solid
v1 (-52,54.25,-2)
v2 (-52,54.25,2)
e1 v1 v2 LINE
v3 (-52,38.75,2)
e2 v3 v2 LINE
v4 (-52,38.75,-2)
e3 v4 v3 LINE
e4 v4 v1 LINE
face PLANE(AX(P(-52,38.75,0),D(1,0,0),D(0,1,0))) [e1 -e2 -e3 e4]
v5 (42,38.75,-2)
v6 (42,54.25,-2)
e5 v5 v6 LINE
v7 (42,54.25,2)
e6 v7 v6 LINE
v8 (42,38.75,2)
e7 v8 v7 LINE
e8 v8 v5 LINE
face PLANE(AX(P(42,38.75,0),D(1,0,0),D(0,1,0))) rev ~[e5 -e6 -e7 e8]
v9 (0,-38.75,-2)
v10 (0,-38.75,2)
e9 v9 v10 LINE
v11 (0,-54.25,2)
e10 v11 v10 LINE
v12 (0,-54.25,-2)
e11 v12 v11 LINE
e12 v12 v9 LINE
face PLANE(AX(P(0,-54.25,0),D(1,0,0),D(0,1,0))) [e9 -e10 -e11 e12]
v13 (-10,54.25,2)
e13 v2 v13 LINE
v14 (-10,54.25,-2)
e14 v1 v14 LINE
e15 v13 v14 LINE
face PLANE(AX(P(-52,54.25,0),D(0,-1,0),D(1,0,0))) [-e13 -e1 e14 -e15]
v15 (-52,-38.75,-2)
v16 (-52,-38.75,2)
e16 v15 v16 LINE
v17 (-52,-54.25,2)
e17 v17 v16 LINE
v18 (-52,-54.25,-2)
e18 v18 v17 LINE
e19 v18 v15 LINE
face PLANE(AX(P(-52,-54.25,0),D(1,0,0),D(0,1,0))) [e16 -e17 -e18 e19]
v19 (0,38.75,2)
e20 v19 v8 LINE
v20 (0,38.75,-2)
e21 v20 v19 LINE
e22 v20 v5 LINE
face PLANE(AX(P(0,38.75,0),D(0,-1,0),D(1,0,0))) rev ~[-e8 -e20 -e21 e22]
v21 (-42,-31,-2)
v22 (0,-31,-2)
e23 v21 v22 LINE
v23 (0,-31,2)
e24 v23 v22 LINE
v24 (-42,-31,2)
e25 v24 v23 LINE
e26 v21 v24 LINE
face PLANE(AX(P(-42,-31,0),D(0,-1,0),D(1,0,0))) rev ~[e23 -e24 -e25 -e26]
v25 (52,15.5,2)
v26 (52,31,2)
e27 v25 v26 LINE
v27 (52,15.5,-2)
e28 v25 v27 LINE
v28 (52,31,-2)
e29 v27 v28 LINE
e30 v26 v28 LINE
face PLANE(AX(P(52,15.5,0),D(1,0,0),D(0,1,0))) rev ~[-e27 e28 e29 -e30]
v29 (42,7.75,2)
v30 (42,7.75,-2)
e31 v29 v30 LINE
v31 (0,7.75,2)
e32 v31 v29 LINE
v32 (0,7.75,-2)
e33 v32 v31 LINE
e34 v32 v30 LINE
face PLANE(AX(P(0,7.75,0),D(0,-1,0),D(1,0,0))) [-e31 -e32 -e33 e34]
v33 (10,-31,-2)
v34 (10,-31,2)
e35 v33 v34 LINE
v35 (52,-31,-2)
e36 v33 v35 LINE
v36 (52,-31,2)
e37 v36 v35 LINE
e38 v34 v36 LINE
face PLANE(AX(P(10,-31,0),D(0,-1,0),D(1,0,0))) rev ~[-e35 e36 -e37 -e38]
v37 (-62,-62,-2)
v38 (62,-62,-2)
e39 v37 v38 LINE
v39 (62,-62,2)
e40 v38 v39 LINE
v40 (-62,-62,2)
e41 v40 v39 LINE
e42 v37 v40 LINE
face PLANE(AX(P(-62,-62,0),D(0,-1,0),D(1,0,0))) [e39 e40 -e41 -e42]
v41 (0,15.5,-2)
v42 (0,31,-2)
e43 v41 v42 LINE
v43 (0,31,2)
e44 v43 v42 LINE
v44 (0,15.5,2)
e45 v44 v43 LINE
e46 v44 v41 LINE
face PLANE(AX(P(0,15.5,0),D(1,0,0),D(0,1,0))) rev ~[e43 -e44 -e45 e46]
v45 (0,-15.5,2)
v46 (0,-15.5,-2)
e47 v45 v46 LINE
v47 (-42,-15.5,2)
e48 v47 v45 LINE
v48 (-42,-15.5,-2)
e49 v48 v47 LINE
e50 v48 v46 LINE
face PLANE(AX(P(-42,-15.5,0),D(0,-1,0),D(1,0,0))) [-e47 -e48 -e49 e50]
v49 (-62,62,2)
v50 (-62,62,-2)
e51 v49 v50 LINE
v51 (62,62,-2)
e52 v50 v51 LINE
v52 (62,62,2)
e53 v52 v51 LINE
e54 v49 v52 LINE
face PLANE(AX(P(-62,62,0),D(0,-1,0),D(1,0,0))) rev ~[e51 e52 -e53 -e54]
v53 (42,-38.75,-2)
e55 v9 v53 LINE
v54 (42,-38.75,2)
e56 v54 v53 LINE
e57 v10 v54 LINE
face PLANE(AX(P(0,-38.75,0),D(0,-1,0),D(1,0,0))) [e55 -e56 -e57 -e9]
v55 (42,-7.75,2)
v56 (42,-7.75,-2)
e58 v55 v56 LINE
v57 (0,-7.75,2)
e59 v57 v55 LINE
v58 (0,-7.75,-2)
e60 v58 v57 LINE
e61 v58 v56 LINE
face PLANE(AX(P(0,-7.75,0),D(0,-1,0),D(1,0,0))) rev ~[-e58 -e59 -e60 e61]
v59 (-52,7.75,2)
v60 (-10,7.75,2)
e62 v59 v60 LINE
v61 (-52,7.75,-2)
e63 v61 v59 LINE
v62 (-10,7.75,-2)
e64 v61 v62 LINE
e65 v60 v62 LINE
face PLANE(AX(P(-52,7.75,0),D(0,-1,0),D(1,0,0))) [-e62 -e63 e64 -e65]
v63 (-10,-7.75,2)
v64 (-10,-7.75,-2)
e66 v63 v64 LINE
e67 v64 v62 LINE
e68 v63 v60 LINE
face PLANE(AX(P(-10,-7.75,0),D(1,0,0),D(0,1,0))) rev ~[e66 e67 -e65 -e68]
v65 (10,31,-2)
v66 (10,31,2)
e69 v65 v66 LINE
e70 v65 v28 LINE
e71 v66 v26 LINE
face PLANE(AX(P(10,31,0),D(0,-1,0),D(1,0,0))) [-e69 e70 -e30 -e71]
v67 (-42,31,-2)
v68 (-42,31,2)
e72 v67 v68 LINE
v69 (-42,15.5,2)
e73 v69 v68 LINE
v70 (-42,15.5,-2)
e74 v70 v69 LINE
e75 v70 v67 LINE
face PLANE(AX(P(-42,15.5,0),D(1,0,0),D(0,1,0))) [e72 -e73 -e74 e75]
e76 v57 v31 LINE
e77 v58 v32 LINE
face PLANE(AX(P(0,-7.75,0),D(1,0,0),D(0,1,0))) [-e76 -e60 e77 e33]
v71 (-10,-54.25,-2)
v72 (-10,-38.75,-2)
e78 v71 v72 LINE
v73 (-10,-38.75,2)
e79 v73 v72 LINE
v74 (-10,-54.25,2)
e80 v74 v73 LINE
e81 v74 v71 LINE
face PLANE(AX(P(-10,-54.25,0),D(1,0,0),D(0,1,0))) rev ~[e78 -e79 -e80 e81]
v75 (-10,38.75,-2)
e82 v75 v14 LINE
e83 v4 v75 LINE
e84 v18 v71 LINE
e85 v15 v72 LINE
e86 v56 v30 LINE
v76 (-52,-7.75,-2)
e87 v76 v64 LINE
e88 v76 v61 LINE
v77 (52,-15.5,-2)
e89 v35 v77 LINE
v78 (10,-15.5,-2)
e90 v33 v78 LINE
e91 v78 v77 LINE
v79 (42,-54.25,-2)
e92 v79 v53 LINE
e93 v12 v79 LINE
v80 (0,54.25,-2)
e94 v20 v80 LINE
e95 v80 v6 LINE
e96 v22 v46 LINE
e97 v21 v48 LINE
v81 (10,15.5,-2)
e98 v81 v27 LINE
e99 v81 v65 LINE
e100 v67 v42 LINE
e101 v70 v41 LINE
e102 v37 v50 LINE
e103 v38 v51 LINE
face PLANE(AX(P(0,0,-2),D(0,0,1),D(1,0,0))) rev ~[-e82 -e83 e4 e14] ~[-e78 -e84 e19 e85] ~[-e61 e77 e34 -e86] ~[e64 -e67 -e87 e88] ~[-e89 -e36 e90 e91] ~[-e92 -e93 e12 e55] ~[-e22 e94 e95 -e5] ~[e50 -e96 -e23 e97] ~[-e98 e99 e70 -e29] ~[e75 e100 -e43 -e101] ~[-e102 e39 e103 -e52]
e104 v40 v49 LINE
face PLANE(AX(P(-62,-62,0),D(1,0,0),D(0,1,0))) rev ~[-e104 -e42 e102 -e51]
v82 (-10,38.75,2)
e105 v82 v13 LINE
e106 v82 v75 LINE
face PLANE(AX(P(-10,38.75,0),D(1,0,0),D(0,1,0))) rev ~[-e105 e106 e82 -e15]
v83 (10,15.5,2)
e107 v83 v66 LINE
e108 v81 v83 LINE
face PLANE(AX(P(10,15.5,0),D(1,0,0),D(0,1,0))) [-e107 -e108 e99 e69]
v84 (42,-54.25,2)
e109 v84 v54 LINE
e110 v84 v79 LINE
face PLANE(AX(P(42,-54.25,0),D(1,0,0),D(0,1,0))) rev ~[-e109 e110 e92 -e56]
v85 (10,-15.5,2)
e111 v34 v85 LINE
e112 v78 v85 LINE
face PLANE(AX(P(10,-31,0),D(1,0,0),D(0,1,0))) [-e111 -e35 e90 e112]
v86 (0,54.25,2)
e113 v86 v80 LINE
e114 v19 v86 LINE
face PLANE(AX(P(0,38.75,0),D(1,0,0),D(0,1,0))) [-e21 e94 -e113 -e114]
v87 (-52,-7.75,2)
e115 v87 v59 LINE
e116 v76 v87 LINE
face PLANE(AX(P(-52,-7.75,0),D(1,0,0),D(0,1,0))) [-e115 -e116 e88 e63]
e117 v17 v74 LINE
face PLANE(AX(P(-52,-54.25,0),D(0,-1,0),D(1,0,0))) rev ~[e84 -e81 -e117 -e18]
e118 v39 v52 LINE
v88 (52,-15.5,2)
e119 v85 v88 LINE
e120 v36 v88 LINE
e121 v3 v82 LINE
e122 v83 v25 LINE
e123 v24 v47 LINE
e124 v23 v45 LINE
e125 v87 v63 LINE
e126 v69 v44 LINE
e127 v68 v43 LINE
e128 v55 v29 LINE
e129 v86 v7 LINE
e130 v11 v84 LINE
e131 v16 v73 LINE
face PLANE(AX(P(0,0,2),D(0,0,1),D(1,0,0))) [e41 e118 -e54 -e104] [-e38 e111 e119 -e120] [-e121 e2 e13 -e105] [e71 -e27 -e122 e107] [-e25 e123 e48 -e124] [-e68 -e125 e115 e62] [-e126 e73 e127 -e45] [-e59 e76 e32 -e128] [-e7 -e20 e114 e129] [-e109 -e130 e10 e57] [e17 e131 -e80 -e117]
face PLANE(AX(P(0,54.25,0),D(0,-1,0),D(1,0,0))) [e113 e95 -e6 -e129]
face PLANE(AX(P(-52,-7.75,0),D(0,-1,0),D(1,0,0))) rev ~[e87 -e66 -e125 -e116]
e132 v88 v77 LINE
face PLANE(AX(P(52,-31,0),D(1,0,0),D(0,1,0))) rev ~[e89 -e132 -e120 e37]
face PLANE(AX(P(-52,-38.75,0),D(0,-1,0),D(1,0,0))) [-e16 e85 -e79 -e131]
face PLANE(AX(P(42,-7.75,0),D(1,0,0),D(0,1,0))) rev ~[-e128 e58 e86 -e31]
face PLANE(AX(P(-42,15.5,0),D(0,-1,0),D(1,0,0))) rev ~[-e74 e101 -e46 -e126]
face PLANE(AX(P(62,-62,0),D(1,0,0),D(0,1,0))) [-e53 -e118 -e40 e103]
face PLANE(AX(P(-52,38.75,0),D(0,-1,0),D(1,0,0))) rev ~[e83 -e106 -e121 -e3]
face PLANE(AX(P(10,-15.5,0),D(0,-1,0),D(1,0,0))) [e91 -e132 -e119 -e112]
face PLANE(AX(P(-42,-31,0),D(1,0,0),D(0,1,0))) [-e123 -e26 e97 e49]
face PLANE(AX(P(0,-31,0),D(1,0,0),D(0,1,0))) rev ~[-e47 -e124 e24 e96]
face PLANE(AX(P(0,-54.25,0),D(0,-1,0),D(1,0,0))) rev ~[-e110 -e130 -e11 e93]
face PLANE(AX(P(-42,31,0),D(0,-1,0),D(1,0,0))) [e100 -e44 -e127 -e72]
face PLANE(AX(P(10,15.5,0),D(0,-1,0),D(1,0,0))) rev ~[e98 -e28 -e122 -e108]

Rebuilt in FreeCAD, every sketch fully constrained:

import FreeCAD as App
import Part
import Sketcher

V = App.Vector
Q = App.Units.Quantity


def add_polygon(sketch, points):
    """Adds a closed chain of lines whose ends are joined by coincident constraints."""
    first, n = sketch.GeometryCount, len(points)
    for a, b in zip(points, points[1:] + points[:1]):
        sketch.addGeometry(Part.LineSegment(App.Vector(*a, 0), App.Vector(*b, 0)), False)
    for i in range(n):
        sketch.addConstraint(Sketcher.Constraint("Coincident", first + i, 2, first + (i + 1) % n, 1))

doc = App.newDocument("Part")
body = doc.addObject("PartDesign::Body", "Body")

sketch1 = body.newObject("Sketcher::SketchObject", "Sketch")
sketch1.AttachmentSupport = (doc.getObject("XY_Plane"), [""])
sketch1.MapMode = "FlatFace"
add_polygon(sketch1, [(-62, 62), (-62, -62), (62, -62), (62, 62)])
add_polygon(sketch1, [(-10, -54), (-52, -54), (-52, -39), (-10, -39)])
add_polygon(sketch1, [(0, -31), (-42, -31), (-42, -16), (0, -16)])
add_polygon(sketch1, [(42, -54), (0, -54), (0, -39), (42, -39)])
add_polygon(sketch1, [(52, -31), (10, -31), (10, -16), (52, -16)])
add_polygon(sketch1, [(-10, -8), (-52, -8), (-52, 8), (-10, 8)])
add_polygon(sketch1, [(0, 16), (-42, 16), (-42, 31), (0, 31)])
add_polygon(sketch1, [(-10, 39), (-52, 39), (-52, 54), (-10, 54)])
add_polygon(sketch1, [(42, -8), (0, -8), (0, 8), (42, 8)])
add_polygon(sketch1, [(52, 16), (10, 16), (10, 31), (52, 31)])
add_polygon(sketch1, [(42, 39), (0, 39), (0, 54), (42, 54)])
sketch1.addConstraint(Sketcher.Constraint("Vertical", 0))
sketch1.addConstraint(Sketcher.Constraint("Horizontal", 1))
sketch1.addConstraint(Sketcher.Constraint("Vertical", 2))
sketch1.addConstraint(Sketcher.Constraint("Horizontal", 3))
sketch1.addConstraint(Sketcher.Constraint("Horizontal", 4))
sketch1.addConstraint(Sketcher.Constraint("Vertical", 5))
sketch1.addConstraint(Sketcher.Constraint("Horizontal", 6))
sketch1.addConstraint(Sketcher.Constraint("Vertical", 7))
sketch1.addConstraint(Sketcher.Constraint("Horizontal", 8))
sketch1.addConstraint(Sketcher.Constraint("Vertical", 9))
sketch1.addConstraint(Sketcher.Constraint("Horizontal", 10))
sketch1.addConstraint(Sketcher.Constraint("Vertical", 11))
sketch1.addConstraint(Sketcher.Constraint("Horizontal", 12))
sketch1.addConstraint(Sketcher.Constraint("Vertical", 13))
sketch1.addConstraint(Sketcher.Constraint("Horizontal", 14))
sketch1.addConstraint(Sketcher.Constraint("Vertical", 15))
sketch1.addConstraint(Sketcher.Constraint("Horizontal", 16))
sketch1.addConstraint(Sketcher.Constraint("Vertical", 17))
sketch1.addConstraint(Sketcher.Constraint("Horizontal", 18))
sketch1.addConstraint(Sketcher.Constraint("Vertical", 19))
sketch1.addConstraint(Sketcher.Constraint("Horizontal", 20))
sketch1.addConstraint(Sketcher.Constraint("Vertical", 21))
sketch1.addConstraint(Sketcher.Constraint("Horizontal", 22))
sketch1.addConstraint(Sketcher.Constraint("Vertical", 23))
sketch1.addConstraint(Sketcher.Constraint("Horizontal", 24))
sketch1.addConstraint(Sketcher.Constraint("Vertical", 25))
sketch1.addConstraint(Sketcher.Constraint("Horizontal", 26))
sketch1.addConstraint(Sketcher.Constraint("Vertical", 27))
sketch1.addConstraint(Sketcher.Constraint("Horizontal", 28))
sketch1.addConstraint(Sketcher.Constraint("Vertical", 29))
sketch1.addConstraint(Sketcher.Constraint("Horizontal", 30))
sketch1.addConstraint(Sketcher.Constraint("Vertical", 31))
sketch1.addConstraint(Sketcher.Constraint("Horizontal", 32))
sketch1.addConstraint(Sketcher.Constraint("Vertical", 33))
sketch1.addConstraint(Sketcher.Constraint("Horizontal", 34))
sketch1.addConstraint(Sketcher.Constraint("Vertical", 35))
sketch1.addConstraint(Sketcher.Constraint("Horizontal", 36))
sketch1.addConstraint(Sketcher.Constraint("Vertical", 37))
sketch1.addConstraint(Sketcher.Constraint("Horizontal", 38))
sketch1.addConstraint(Sketcher.Constraint("Vertical", 39))
sketch1.addConstraint(Sketcher.Constraint("Horizontal", 40))
sketch1.addConstraint(Sketcher.Constraint("Vertical", 41))
sketch1.addConstraint(Sketcher.Constraint("Horizontal", 42))
sketch1.addConstraint(Sketcher.Constraint("Vertical", 43))
sketch1.addConstraint(Sketcher.Constraint("Symmetric", 0, 2, 2, 2, -1, 1))
sketch1.addConstraint(Sketcher.Constraint("Symmetric", 11, 2, 26, 2, -1, 1))
sketch1.addConstraint(Sketcher.Constraint("Symmetric", 32, 2, 33, 2, -1, 1))
sketch1.addConstraint(Sketcher.Constraint("Symmetric", 13, 2, 40, 2, -1, 1))
sketch1.addConstraint(Sketcher.Constraint("Symmetric", 9, 2, 24, 2, -1))
sketch1.addConstraint(Sketcher.Constraint("Symmetric", 5, 2, 28, 2, -1))
sketch1.addConstraint(Sketcher.Constraint("Symmetric", 7, 2, 30, 2, -1))
sketch1.addConstraint(Sketcher.Constraint("Symmetric", 17, 2, 36, 2, -1))
sketch1.addConstraint(Sketcher.Constraint("Symmetric", 19, 2, 38, 2, -1))
sketch1.addConstraint(Sketcher.Constraint("Symmetric", 12, 2, 41, 2, -1))
sketch1.addConstraint(Sketcher.Constraint("PointOnObject", 10, 2, -2))
sketch1.addConstraint(Sketcher.Constraint("Horizontal", 7, 2, 12, 2))
sketch1.addConstraint(Sketcher.Constraint("Horizontal", 6, 2, 13, 2))
sketch1.addConstraint(Sketcher.Constraint("Horizontal", 11, 2, 16, 2))
sketch1.addConstraint(Sketcher.Constraint("Horizontal", 10, 2, 17, 2))
sketch1.addConstraint(Sketcher.Constraint("Horizontal", 23, 2, 32, 2))
sketch1.addConstraint(Sketcher.Constraint("Horizontal", 22, 2, 33, 2))
sketch1.addConstraint(Sketcher.Constraint("Vertical", 5, 2, 20, 2))
sketch1.addConstraint(Sketcher.Constraint("Vertical", 7, 2, 22, 2))
sketch1.addConstraint(Sketcher.Constraint("Vertical", 15, 2, 34, 2))
sketch1.addConstraint(Sketcher.Constraint("Vertical", 35, 2, 42, 2))
sketch1.addConstraint(Sketcher.Constraint("Equal", 6, 8))
sketch1.addConstraint(Sketcher.Constraint("Equal", 10, 12))
sketch1.addConstraint(Sketcher.Constraint("Equal", 14, 16))
sketch1.addConstraint(Sketcher.Constraint("Equal", 3, 0))
sketch1.addConstraint(Sketcher.Constraint("Equal", 7, 9))
sketch1.addConstraint(Sketcher.Constraint("Equal", 19, 21))
sketch1.addConstraint(Sketcher.Constraint("DistanceX", 1, 1, 1, 2, Q("124 mm")))
sketch1.addConstraint(Sketcher.Constraint("DistanceX", 4, 2, 4, 1, Q("42 mm")))
sketch1.addConstraint(Sketcher.Constraint("DistanceY", 5, 1, 5, 2, Q("15.5 mm")))
sketch1.addConstraint(Sketcher.Constraint("DistanceX", 4, 2, -1, 1, Q("52 mm")))
sketch1.addConstraint(Sketcher.Constraint("DistanceY", 8, 2, -1, 1, Q("31 mm")))
sketch1.addConstraint(Sketcher.Constraint("DistanceX", -1, 1, 16, 2, Q("10 mm")))
sketch1.addConstraint(Sketcher.Constraint("DistanceY", 5, 2, 20, 2, Q("31 mm")))
pad1 = body.newObject("PartDesign::Pad", "Pad")
pad1.Profile = sketch1
pad1.Length = 4
pad1.Midplane = True

doc.recompute()
